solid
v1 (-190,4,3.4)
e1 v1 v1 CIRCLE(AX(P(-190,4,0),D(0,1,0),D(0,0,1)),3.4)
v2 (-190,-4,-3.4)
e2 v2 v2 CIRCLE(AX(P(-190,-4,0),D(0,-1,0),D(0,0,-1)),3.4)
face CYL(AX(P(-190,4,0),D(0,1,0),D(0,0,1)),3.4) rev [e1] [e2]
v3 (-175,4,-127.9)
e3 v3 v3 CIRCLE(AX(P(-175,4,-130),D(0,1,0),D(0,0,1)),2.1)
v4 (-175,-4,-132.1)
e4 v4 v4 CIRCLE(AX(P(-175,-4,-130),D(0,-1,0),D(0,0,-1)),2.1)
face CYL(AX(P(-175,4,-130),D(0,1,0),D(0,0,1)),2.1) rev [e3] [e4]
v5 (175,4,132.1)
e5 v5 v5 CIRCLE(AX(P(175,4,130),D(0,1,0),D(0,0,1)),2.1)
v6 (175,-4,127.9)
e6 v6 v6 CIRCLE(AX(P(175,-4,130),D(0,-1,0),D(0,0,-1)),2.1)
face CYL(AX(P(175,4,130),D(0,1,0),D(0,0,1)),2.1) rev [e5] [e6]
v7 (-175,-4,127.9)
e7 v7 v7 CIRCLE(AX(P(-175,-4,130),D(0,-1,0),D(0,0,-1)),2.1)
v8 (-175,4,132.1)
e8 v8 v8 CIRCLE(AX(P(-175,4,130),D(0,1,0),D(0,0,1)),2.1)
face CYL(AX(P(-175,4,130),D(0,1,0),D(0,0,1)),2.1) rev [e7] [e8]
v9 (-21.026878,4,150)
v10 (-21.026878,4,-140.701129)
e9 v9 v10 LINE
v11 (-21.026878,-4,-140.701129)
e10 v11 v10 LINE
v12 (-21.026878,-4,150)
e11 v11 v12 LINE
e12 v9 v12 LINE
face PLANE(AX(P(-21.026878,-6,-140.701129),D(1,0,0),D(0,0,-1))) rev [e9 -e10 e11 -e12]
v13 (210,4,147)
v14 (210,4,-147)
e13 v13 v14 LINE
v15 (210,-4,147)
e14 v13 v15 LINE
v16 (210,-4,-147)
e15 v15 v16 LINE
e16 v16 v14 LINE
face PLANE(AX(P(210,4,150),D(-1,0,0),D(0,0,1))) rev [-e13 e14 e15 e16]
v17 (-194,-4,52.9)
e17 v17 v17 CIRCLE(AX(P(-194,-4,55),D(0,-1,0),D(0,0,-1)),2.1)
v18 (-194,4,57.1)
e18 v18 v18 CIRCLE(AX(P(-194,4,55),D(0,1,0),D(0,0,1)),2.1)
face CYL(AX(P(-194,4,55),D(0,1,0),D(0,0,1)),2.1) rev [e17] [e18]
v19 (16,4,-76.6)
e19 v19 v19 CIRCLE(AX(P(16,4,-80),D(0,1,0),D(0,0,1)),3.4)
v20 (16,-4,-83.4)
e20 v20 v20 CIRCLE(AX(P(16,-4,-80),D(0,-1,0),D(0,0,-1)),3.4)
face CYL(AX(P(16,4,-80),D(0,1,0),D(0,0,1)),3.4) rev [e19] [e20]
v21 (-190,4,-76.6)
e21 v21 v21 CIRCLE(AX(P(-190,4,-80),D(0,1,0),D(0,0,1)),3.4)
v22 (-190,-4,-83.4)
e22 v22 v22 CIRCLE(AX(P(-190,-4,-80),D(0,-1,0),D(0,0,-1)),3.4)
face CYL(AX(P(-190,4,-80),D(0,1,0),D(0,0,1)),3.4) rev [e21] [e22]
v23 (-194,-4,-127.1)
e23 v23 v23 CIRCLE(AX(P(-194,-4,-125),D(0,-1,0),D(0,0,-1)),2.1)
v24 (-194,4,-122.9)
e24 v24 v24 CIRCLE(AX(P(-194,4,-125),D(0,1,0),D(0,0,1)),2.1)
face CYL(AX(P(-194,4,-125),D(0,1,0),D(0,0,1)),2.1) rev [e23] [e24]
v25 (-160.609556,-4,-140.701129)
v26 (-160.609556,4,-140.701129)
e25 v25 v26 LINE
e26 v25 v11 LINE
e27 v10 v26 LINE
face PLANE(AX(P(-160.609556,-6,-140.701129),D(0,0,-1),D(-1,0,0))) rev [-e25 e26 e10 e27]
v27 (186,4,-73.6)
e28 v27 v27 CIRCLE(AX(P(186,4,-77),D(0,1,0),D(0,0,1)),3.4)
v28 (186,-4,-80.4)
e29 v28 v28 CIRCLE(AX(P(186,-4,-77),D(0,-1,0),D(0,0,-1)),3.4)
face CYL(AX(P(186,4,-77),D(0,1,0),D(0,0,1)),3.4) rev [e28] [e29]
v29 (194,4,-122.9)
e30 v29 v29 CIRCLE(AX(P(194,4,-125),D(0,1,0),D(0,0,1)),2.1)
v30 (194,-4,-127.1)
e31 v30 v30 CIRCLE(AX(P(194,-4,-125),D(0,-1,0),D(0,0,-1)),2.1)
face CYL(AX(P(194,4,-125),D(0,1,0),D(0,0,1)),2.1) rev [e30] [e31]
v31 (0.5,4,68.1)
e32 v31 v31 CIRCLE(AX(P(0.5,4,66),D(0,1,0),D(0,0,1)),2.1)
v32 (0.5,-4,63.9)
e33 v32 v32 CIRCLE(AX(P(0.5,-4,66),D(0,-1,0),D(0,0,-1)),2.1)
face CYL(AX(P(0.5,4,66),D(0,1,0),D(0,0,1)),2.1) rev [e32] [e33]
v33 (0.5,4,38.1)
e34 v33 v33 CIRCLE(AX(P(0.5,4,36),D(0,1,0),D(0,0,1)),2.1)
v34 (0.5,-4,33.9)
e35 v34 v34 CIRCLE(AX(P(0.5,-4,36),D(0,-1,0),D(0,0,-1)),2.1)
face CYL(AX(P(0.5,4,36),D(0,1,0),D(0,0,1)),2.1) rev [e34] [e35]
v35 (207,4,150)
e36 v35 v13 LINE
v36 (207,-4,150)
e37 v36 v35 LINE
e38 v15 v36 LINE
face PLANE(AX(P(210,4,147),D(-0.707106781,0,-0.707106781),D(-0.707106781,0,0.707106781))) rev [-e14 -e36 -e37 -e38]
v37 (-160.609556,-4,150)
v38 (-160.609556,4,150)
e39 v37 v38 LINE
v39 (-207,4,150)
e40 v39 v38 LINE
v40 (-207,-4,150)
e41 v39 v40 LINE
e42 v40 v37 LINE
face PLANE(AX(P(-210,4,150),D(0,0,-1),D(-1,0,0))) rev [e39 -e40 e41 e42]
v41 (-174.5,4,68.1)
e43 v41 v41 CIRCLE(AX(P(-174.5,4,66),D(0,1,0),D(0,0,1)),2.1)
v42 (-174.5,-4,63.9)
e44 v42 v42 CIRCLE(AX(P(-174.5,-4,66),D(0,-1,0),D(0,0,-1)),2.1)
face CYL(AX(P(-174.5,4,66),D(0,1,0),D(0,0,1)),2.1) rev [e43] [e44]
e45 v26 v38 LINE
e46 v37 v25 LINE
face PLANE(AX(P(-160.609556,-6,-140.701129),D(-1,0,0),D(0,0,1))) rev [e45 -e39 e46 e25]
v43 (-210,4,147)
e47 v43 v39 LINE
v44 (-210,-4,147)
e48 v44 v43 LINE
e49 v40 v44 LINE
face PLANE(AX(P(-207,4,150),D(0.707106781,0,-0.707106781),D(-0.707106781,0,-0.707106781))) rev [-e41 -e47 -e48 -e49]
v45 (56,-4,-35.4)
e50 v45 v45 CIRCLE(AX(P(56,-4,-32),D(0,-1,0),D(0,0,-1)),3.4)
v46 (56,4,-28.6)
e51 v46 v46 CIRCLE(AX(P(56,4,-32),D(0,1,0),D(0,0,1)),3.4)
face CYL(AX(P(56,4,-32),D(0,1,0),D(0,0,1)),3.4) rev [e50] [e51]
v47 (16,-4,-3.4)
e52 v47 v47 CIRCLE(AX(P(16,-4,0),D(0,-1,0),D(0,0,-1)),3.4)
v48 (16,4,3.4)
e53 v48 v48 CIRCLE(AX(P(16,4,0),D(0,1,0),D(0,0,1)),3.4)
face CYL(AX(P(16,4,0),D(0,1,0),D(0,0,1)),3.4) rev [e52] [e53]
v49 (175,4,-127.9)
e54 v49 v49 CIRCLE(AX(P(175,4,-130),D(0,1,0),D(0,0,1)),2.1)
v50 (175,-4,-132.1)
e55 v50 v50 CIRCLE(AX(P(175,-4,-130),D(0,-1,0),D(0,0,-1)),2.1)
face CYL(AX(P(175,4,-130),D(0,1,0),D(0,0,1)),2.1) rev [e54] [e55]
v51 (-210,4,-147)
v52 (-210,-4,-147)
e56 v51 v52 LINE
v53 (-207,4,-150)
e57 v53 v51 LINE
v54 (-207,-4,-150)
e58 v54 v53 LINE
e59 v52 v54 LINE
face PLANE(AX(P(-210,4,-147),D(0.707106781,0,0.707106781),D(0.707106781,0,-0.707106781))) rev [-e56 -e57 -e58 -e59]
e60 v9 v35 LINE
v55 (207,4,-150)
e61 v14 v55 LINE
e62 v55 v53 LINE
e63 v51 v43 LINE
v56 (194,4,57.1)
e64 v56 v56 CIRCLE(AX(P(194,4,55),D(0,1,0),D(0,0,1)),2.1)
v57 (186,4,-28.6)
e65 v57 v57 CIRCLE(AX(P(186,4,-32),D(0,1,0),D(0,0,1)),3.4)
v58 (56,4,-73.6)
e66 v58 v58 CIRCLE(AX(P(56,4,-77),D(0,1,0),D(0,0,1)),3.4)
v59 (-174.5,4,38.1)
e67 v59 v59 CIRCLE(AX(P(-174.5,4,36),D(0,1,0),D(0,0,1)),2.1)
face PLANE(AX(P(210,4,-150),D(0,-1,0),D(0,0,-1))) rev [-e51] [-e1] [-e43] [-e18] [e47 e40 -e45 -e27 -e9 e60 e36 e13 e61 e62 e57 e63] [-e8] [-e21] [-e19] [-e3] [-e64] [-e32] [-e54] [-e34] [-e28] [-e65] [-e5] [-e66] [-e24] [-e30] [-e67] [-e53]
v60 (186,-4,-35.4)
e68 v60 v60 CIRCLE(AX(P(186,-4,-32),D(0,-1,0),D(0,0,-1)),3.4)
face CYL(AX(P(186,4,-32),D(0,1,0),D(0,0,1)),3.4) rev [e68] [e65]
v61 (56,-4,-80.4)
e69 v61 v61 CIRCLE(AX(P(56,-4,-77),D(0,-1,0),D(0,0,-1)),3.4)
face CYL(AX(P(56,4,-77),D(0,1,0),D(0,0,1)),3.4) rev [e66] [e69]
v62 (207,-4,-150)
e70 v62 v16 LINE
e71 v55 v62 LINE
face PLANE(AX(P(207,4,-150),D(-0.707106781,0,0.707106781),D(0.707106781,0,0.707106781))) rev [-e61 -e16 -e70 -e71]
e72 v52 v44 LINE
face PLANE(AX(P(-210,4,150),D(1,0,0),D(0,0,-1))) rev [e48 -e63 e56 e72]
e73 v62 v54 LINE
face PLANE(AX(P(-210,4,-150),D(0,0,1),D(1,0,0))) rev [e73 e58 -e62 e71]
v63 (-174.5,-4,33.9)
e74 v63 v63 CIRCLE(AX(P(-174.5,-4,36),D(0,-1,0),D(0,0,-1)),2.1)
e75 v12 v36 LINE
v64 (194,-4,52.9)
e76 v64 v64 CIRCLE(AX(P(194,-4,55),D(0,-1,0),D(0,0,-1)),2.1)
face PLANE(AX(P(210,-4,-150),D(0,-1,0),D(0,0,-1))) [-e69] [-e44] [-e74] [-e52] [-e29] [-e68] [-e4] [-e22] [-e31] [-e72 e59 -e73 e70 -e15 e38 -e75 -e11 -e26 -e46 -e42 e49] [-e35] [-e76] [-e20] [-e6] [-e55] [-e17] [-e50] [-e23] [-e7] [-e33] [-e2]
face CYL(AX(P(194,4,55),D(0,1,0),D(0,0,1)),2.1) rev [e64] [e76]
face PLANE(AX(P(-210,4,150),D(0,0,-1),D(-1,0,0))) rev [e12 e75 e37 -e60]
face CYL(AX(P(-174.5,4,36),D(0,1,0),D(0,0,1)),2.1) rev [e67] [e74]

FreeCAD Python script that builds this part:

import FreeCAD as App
import Part
import Sketcher


def edges_at(feature, points):
    """Names of the edges that pass closest to the given points."""
    edges = feature.Shape.Edges
    near = lambda p: min(range(len(edges)), key=lambda i: edges[i].distToShape(Part.Vertex(*p))[0])
    return sorted({f"Edge{near(p) + 1}" for p in points})


def add_polygon(sketch, points):
    """Adds a closed chain of lines whose ends are joined by coincident constraints."""
    first, n = sketch.GeometryCount, len(points)
    for a, b in zip(points, points[1:] + points[:1]):
        sketch.addGeometry(Part.LineSegment(App.Vector(*a, 0), App.Vector(*b, 0)), False)
    for i in range(n):
        sketch.addConstraint(Sketcher.Constraint("Coincident", first + i, 2, first + (i + 1) % n, 1))

doc = App.newDocument("Part")
body = doc.addObject("PartDesign::Body", "Body")

sketch1 = body.newObject("Sketcher::SketchObject", "Sketch")
sketch1.AttachmentSupport = (doc.getObject("XZ_Plane"), [""])
sketch1.MapMode = "FlatFace"
add_polygon(sketch1, [(-210, -150), (-210, 150), (210, 150), (210, -150)])
sketch1.addConstraint(Sketcher.Constraint("Vertical", 0))
sketch1.addConstraint(Sketcher.Constraint("Horizontal", 1))
sketch1.addConstraint(Sketcher.Constraint("Vertical", 2))
sketch1.addConstraint(Sketcher.Constraint("Horizontal", 3))
sketch1.addConstraint(Sketcher.Constraint("Symmetric", 0, 2, 2, 2, -1, 1))
sketch1.addConstraint(Sketcher.Constraint("DistanceX", 1, 1, 1, 2, 420.0))
sketch1.addConstraint(Sketcher.Constraint("DistanceY", 0, 1, 0, 2, 300.0))
pad1 = body.newObject("PartDesign::Pad", "Pad")
pad1.Profile = sketch1
pad1.Length = 8
pad1.Midplane = True
doc.recompute()

chamfer = body.newObject("PartDesign::Chamfer", "Chamfer")
chamfer.Base = (pad1, edges_at(pad1, [
    (210, 0, 150),
    (-210, 0, 150),
    (-210, 0, -150),
    (210, 0, -150),
]))
chamfer.Size = 3

sketch2 = body.newObject("Sketcher::SketchObject", "Sketch001")
sketch2.AttachmentSupport = (doc.getObject("XZ_Plane"), [""])
sketch2.MapMode = "FlatFace"
sketch2.AttachmentOffset = App.Placement(App.Vector(0, 0, -4), App.Rotation())
sketch2.addGeometry(Part.Circle(App.Vector(-190, -80, 0), App.Vector(0, 0, 1), 3.4), False)
sketch2.addGeometry(Part.Circle(App.Vector(16, -80, 0), App.Vector(0, 0, 1), 3.4), False)
sketch2.addGeometry(Part.Circle(App.Vector(16, 0, 0), App.Vector(0, 0, 1), 3.4), False)
sketch2.addGeometry(Part.Circle(App.Vector(-190, 0, 0), App.Vector(0, 0, 1), 3.4), False)
sketch2.addGeometry(Part.Circle(App.Vector(56, -32, 0), App.Vector(0, 0, 1), 3.4), False)
sketch2.addGeometry(Part.Circle(App.Vector(186, -32, 0), App.Vector(0, 0, 1), 3.4), False)
sketch2.addGeometry(Part.Circle(App.Vector(186, -77, 0), App.Vector(0, 0, 1), 3.4), False)
sketch2.addGeometry(Part.Circle(App.Vector(56, -77, 0), App.Vector(0, 0, 1), 3.4), False)
sketch2.addConstraint(Sketcher.Constraint("Equal", 0, 1))
sketch2.addConstraint(Sketcher.Constraint("Equal", 1, 2))
sketch2.addConstraint(Sketcher.Constraint("Equal", 2, 3))
sketch2.addConstraint(Sketcher.Constraint("Equal", 3, 4))
sketch2.addConstraint(Sketcher.Constraint("Equal", 4, 5))
sketch2.addConstraint(Sketcher.Constraint("Equal", 5, 6))
sketch2.addConstraint(Sketcher.Constraint("Equal", 6, 7))
sketch2.addConstraint(Sketcher.Constraint("PointOnObject", 2, 3, -1))
sketch2.addConstraint(Sketcher.Constraint("PointOnObject", 3, 3, -1))
sketch2.addConstraint(Sketcher.Constraint("Horizontal", 0, 3, 1, 3))
sketch2.addConstraint(Sketcher.Constraint("Horizontal", 4, 3, 5, 3))
sketch2.addConstraint(Sketcher.Constraint("Horizontal", 6, 3, 7, 3))
sketch2.addConstraint(Sketcher.Constraint("Vertical", 1, 3, 2, 3))
sketch2.addConstraint(Sketcher.Constraint("Vertical", 0, 3, 3, 3))
sketch2.addConstraint(Sketcher.Constraint("Vertical", 5, 3, 6, 3))
sketch2.addConstraint(Sketcher.Constraint("Vertical", 4, 3, 7, 3))
sketch2.addConstraint(Sketcher.Constraint("Diameter", 0, 6.8))
sketch2.addConstraint(Sketcher.Constraint("DistanceX", 0, 3, -1, 1, 190.0))
sketch2.addConstraint(Sketcher.Constraint("DistanceY", 0, 3, -1, 1, 80.0))
sketch2.addConstraint(Sketcher.Constraint("DistanceX", -1, 1, 1, 3, 16.0))
sketch2.addConstraint(Sketcher.Constraint("DistanceX", -1, 1, 4, 3, 56.0))
sketch2.addConstraint(Sketcher.Constraint("DistanceY", 4, 3, -1, 1, 32.0))
sketch2.addConstraint(Sketcher.Constraint("DistanceX", -1, 1, 5, 3, 186.0))
sketch2.addConstraint(Sketcher.Constraint("DistanceY", 6, 3, -1, 1, 77.0))
doc.recompute()
hole = body.newObject("PartDesign::Hole", "Hole")
hole.Profile = sketch2
hole.ThreadType = "None"
hole.Diameter = 6.8
hole.DepthType = "Dimension"
hole.Depth = 19.75
hole.DrillPoint = "Angled"
hole.DrillPointAngle = 118
hole.Reversed = True

sketch3 = body.newObject("Sketcher::SketchObject", "Sketch002")
sketch3.AttachmentSupport = (doc.getObject("XZ_Plane"), [""])
sketch3.MapMode = "FlatFace"
sketch3.AttachmentOffset = App.Placement(App.Vector(0, 0, -4), App.Rotation())
sketch3.addGeometry(Part.Circle(App.Vector(-175, 130, 0), App.Vector(0, 0, 1), 2.1), False)
sketch3.addGeometry(Part.Circle(App.Vector(175, 130, 0), App.Vector(0, 0, 1), 2.1), False)
sketch3.addGeometry(Part.Circle(App.Vector(175, -130, 0), App.Vector(0, 0, 1), 2.1), False)
sketch3.addGeometry(Part.Circle(App.Vector(-175, -130, 0), App.Vector(0, 0, 1), 2.1), False)
sketch3.addGeometry(Part.Circle(App.Vector(-194, -125, 0), App.Vector(0, 0, 1), 2.1), False)
sketch3.addGeometry(Part.Circle(App.Vector(-194, 55, 0), App.Vector(0, 0, 1), 2.1), False)
sketch3.addGeometry(Part.Circle(App.Vector(194, 55, 0), App.Vector(0, 0, 1), 2.1), False)
sketch3.addGeometry(Part.Circle(App.Vector(194, -125, 0), App.Vector(0, 0, 1), 2.1), False)
sketch3.addGeometry(Part.Circle(App.Vector(-174.5, 66, 0), App.Vector(0, 0, 1), 2.1), False)
sketch3.addGeometry(Part.Circle(App.Vector(-174.5, 36, 0), App.Vector(0, 0, 1), 2.1), False)
sketch3.addGeometry(Part.Circle(App.Vector(0.5, 36, 0), App.Vector(0, 0, 1), 2.1), False)
sketch3.addGeometry(Part.Circle(App.Vector(0.5, 66, 0), App.Vector(0, 0, 1), 2.1), False)
sketch3.addConstraint(Sketcher.Constraint("Equal", 0, 1))
sketch3.addConstraint(Sketcher.Constraint("Equal", 1, 2))
sketch3.addConstraint(Sketcher.Constraint("Equal", 2, 3))
sketch3.addConstraint(Sketcher.Constraint("Equal", 3, 4))
sketch3.addConstraint(Sketcher.Constraint("Equal", 4, 5))
sketch3.addConstraint(Sketcher.Constraint("Equal", 5, 6))
sketch3.addConstraint(Sketcher.Constraint("Equal", 6, 7))
sketch3.addConstraint(Sketcher.Constraint("Equal", 7, 8))
sketch3.addConstraint(Sketcher.Constraint("Equal", 8, 9))
sketch3.addConstraint(Sketcher.Constraint("Equal", 9, 10))
sketch3.addConstraint(Sketcher.Constraint("Equal", 10, 11))
sketch3.addConstraint(Sketcher.Constraint("Symmetric", 0, 3, 2, 3, -1, 1))
sketch3.addConstraint(Sketcher.Constraint("Symmetric", 1, 3, 3, 3, -1, 1))
sketch3.addConstraint(Sketcher.Constraint("Symmetric", 0, 3, 1, 3, -2))
sketch3.addConstraint(Sketcher.Constraint("Symmetric", 5, 3, 6, 3, -2))
sketch3.addConstraint(Sketcher.Constraint("Symmetric", 4, 3, 7, 3, -2))
sketch3.addConstraint(Sketcher.Constraint("Horizontal", 9, 3, 10, 3))
sketch3.addConstraint(Sketcher.Constraint("Horizontal", 8, 3, 11, 3))
sketch3.addConstraint(Sketcher.Constraint("Vertical", 4, 3, 5, 3))
sketch3.addConstraint(Sketcher.Constraint("Vertical", 8, 3, 9, 3))
sketch3.addConstraint(Sketcher.Constraint("Vertical", 10, 3, 11, 3))
sketch3.addConstraint(Sketcher.Constraint("Diameter", 0, 4.2))
sketch3.addConstraint(Sketcher.Constraint("DistanceX", 0, 3, -1, 1, 175.0))
sketch3.addConstraint(Sketcher.Constraint("DistanceY", -1, 1, 0, 3, 130.0))
sketch3.addConstraint(Sketcher.Constraint("DistanceX", 4, 3, -1, 1, 194.0))
sketch3.addConstraint(Sketcher.Constraint("DistanceY", 4, 3, -1, 1, 125.0))
sketch3.addConstraint(Sketcher.Constraint("DistanceY", -1, 1, 5, 3, 55.0))
sketch3.addConstraint(Sketcher.Constraint("DistanceY", -1, 1, 8, 3, 66.0))
sketch3.addConstraint(Sketcher.Constraint("DistanceY", -1, 1, 9, 3, 36.0))
sketch3.addConstraint(Sketcher.Constraint("DistanceX", 9, 3, 10, 3, 175.0))
sketch3.addConstraint(Sketcher.Constraint("DistanceX", 8, 3, -1, 1, 174.5))
doc.recompute()
hole2 = body.newObject("PartDesign::Hole", "Hole001")
hole2.Profile = sketch3
hole2.ThreadType = "None"
hole2.Diameter = 4.2
hole2.DepthType = "Dimension"
hole2.Depth = 12.4
hole2.DrillPoint = "Angled"
hole2.DrillPointAngle = 118
hole2.Reversed = True

sketch4 = body.newObject("Sketcher::SketchObject", "Sketch003")
sketch4.AttachmentSupport = (doc.getObject("XZ_Plane"), [""])
sketch4.MapMode = "FlatFace"
sketch4.AttachmentOffset = App.Placement(App.Vector(0, 0, -4), App.Rotation())
add_polygon(sketch4, [(-160.609556, -140.701129), (-160.609556, 163.070148), (-21.026878, 163.070148), (-21.026878, -140.701129)])
sketch4.addConstraint(Sketcher.Constraint("Vertical", 0))
sketch4.addConstraint(Sketcher.Constraint("Horizontal", 1))
sketch4.addConstraint(Sketcher.Constraint("Vertical", 2))
sketch4.addConstraint(Sketcher.Constraint("Horizontal", 3))
sketch4.addConstraint(Sketcher.Constraint("DistanceX", 1, 1, 1, 2, 139.582678))
sketch4.addConstraint(Sketcher.Constraint("DistanceY", 0, 1, 0, 2, 303.771277))
sketch4.addConstraint(Sketcher.Constraint("DistanceY", 2, 2, -1, 1, 140.701129))
sketch4.addConstraint(Sketcher.Constraint("DistanceX", 0, 2, -1, 1, 160.609556))
pocket1 = body.newObject("PartDesign::Pocket", "Pocket")
pocket1.Profile = sketch4
pocket1.Length = 10
pocket1.Reversed = True

doc.recompute()
